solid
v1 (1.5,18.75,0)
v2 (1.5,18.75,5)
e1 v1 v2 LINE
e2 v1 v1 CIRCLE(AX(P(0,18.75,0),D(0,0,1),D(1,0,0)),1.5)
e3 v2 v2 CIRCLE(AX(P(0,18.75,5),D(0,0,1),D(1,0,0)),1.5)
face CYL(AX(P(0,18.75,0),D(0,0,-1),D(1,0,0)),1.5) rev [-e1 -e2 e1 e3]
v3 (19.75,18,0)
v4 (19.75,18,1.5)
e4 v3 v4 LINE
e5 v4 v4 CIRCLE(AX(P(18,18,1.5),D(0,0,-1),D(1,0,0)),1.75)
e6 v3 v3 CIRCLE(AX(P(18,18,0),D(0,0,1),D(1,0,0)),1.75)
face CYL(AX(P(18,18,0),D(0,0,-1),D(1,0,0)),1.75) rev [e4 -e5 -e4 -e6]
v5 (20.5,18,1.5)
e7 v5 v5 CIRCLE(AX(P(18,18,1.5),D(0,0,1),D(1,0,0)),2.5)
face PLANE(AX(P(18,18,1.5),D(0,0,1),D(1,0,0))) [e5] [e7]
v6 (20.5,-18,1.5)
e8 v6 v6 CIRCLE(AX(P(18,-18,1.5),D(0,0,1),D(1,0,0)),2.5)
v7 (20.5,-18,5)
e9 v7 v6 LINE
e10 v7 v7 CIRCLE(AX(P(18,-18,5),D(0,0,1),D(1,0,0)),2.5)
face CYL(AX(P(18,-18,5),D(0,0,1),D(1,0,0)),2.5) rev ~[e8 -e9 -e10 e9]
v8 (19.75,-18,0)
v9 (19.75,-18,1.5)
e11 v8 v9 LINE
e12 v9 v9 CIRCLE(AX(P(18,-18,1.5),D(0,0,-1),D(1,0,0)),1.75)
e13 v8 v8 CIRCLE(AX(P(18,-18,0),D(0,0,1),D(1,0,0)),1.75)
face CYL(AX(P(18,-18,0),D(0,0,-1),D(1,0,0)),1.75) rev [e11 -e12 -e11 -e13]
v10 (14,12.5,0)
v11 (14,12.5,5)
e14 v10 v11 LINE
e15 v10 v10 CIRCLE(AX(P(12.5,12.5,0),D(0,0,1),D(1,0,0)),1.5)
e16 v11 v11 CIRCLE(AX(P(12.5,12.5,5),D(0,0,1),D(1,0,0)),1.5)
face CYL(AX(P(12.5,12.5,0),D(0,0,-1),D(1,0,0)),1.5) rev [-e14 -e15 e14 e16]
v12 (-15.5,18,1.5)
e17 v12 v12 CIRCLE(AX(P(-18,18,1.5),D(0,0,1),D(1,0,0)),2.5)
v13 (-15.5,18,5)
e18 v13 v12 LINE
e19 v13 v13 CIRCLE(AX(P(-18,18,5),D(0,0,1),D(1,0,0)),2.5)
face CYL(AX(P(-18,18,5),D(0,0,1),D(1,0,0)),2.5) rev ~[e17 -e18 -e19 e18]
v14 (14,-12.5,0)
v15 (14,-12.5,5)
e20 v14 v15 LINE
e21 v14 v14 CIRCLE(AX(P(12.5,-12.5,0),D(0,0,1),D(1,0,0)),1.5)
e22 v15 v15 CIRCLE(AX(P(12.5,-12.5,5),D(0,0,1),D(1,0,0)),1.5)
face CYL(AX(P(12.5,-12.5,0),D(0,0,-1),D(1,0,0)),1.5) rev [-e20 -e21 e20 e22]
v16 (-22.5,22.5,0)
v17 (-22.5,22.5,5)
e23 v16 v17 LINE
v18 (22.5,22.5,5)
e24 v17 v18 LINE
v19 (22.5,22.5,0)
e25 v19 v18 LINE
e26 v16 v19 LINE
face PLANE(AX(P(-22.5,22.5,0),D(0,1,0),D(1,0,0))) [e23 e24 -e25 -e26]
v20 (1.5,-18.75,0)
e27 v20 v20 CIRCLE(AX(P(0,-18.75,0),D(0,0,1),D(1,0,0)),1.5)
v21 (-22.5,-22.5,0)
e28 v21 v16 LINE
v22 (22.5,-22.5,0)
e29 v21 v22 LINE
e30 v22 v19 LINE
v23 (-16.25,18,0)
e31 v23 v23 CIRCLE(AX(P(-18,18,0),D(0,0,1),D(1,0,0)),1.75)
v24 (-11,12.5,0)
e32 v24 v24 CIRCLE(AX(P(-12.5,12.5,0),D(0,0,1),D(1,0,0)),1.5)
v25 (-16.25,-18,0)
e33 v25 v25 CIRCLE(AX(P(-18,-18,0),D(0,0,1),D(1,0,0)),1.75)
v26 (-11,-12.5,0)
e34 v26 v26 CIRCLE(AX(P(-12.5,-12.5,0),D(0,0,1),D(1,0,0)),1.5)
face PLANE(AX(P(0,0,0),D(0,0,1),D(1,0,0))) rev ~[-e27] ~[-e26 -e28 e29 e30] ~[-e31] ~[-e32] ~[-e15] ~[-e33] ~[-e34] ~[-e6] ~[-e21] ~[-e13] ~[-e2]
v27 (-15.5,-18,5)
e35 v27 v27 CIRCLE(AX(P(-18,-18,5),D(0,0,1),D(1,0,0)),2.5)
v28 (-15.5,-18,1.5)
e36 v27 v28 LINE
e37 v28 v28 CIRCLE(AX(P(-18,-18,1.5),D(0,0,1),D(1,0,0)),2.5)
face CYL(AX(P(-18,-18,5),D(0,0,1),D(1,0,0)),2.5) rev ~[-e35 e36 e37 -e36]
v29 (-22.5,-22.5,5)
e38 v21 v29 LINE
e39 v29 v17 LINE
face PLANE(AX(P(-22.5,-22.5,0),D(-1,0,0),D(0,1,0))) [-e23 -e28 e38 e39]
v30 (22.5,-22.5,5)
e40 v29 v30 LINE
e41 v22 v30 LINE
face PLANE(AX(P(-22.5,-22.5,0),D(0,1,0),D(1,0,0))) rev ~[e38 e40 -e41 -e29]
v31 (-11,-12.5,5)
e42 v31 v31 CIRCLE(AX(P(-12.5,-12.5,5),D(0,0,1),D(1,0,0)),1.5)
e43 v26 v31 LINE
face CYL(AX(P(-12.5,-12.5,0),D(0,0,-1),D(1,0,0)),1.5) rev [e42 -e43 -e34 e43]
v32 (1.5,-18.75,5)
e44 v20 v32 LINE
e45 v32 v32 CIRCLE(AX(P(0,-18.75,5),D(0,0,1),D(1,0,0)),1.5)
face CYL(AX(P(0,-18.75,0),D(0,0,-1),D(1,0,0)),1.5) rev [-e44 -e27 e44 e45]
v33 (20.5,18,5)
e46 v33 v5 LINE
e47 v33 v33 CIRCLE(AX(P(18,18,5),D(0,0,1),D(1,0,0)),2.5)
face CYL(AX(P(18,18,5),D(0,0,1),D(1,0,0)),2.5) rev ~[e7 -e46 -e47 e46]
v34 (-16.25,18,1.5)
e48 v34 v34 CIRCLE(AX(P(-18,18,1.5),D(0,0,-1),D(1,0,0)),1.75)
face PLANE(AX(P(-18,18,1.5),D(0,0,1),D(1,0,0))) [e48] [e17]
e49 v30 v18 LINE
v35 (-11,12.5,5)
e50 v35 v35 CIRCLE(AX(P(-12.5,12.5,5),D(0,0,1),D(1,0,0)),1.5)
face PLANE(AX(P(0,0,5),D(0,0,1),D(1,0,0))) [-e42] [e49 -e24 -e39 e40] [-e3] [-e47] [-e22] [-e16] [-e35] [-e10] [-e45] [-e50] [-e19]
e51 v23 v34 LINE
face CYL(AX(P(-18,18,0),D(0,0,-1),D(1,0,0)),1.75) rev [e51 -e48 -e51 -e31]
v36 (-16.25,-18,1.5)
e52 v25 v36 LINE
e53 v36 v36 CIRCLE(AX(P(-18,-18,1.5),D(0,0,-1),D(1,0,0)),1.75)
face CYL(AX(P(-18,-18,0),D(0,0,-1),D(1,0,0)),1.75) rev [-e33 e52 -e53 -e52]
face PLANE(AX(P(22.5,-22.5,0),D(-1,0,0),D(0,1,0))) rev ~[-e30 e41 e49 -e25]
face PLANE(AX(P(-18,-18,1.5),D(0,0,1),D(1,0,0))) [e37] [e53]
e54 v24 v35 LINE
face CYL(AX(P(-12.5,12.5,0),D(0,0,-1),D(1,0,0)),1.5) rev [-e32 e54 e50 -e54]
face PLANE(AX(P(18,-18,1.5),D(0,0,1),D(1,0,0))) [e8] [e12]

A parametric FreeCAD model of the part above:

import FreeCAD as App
import Part
import Sketcher
from FreeCAD import Vector
Q = App.Units.Quantity

doc = App.newDocument("Part")
body = doc.addObject("PartDesign::Body", "Body")

# Sketch on XY plane
sketch1 = body.newObject("Sketcher::SketchObject", "Sketch")
sketch1.AttachmentSupport = (doc.getObject("XY_Plane"), [""])
sketch1.MapMode = "FlatFace"
sketch1.addGeometry(Part.LineSegment(Vector(-22.5, 22.5, 0), Vector(-22.5, -22.5, 0)), False)
sketch1.addGeometry(Part.LineSegment(Vector(-22.5, -22.5, 0), Vector(22.5, -22.5, 0)), False)
sketch1.addGeometry(Part.LineSegment(Vector(22.5, -22.5, 0), Vector(22.5, 22.5, 0)), False)
sketch1.addGeometry(Part.LineSegment(Vector(22.5, 22.5, 0), Vector(-22.5, 22.5, 0)), False)
sketch1.addGeometry(Part.Circle(Vector(-18, -18, 0), Vector(0, 0, 1), 1.75), False)
sketch1.addGeometry(Part.Circle(Vector(-12.5, -12.5, 0), Vector(0, 0, 1), 1.5), False)
sketch1.addGeometry(Part.Circle(Vector(0, -18.75, 0), Vector(0, 0, 1), 1.5), False)
sketch1.addGeometry(Part.Circle(Vector(18, -18, 0), Vector(0, 0, 1), 1.75), False)
sketch1.addGeometry(Part.Circle(Vector(12.5, -12.5, 0), Vector(0, 0, 1), 1.5), False)
sketch1.addGeometry(Part.Circle(Vector(-12.5, 12.5, 0), Vector(0, 0, 1), 1.5), False)
sketch1.addGeometry(Part.Circle(Vector(-18, 18, 0), Vector(0, 0, 1), 1.75), False)
sketch1.addGeometry(Part.Circle(Vector(0, 18.75, 0), Vector(0, 0, 1), 1.5), False)
sketch1.addGeometry(Part.Circle(Vector(12.5, 12.5, 0), Vector(0, 0, 1), 1.5), False)
sketch1.addGeometry(Part.Circle(Vector(18, 18, 0), Vector(0, 0, 1), 1.75), False)
sketch1.addConstraint(Sketcher.Constraint("Coincident", 0, 2, 1, 1))
sketch1.addConstraint(Sketcher.Constraint("Coincident", 1, 2, 2, 1))
sketch1.addConstraint(Sketcher.Constraint("Coincident", 2, 2, 3, 1))
sketch1.addConstraint(Sketcher.Constraint("Coincident", 3, 2, 0, 1))
sketch1.addConstraint(Sketcher.Constraint("Vertical", 0))
sketch1.addConstraint(Sketcher.Constraint("Horizontal", 1))
sketch1.addConstraint(Sketcher.Constraint("Vertical", 2))
sketch1.addConstraint(Sketcher.Constraint("Horizontal", 3))
sketch1.addConstraint(Sketcher.Constraint("Equal", 5, 6))
sketch1.addConstraint(Sketcher.Constraint("Equal", 4, 7))
sketch1.addConstraint(Sketcher.Constraint("Equal", 6, 8))
sketch1.addConstraint(Sketcher.Constraint("Equal", 8, 9))
sketch1.addConstraint(Sketcher.Constraint("Equal", 7, 10))
sketch1.addConstraint(Sketcher.Constraint("Equal", 9, 11))
sketch1.addConstraint(Sketcher.Constraint("Equal", 11, 12))
sketch1.addConstraint(Sketcher.Constraint("Equal", 10, 13))
sketch1.addConstraint(Sketcher.Constraint("Symmetric", 8, 3, 9, 3, -1, 1))
sketch1.addConstraint(Sketcher.Constraint("Symmetric", 7, 3, 10, 3, -1, 1))
sketch1.addConstraint(Sketcher.Constraint("Symmetric", 6, 3, 11, 3, -1, 1))
sketch1.addConstraint(Sketcher.Constraint("Symmetric", 5, 3, 12, 3, -1, 1))
sketch1.addConstraint(Sketcher.Constraint("Symmetric", 4, 3, 13, 3, -1, 1))
sketch1.addConstraint(Sketcher.Constraint("Symmetric", 0, 2, 2, 2, -1, 1))
sketch1.addConstraint(Sketcher.Constraint("Symmetric", 4, 3, 7, 3, -2))
sketch1.addConstraint(Sketcher.Constraint("Symmetric", 5, 3, 8, 3, -2))
sketch1.addConstraint(Sketcher.Constraint("PointOnObject", 6, 3, -2))
sketch1.addConstraint(Sketcher.Constraint("Equal", 3, 0))
sketch1.addConstraint(Sketcher.Constraint("Diameter", 5, Q("3 mm")))
sketch1.addConstraint(Sketcher.Constraint("Diameter", 4, Q("3.5 mm")))
sketch1.addConstraint(Sketcher.Constraint("DistanceX", 1, 1, 1, 2, Q("45 mm")))
sketch1.addConstraint(Sketcher.Constraint("DistanceX", 4, 3, -1, 1, Q("18 mm")))
sketch1.addConstraint(Sketcher.Constraint("DistanceY", 4, 3, -1, 1, Q("18 mm")))
sketch1.addConstraint(Sketcher.Constraint("DistanceX", 5, 3, 8, 3, Q("25 mm")))
sketch1.addConstraint(Sketcher.Constraint("DistanceY", 5, 3, 9, 3, Q("25 mm")))
sketch1.addConstraint(Sketcher.Constraint("DistanceY", 6, 3, 11, 3, Q("37.5 mm")))
pad1 = body.newObject("PartDesign::Pad", "Pad")
pad1.Profile = sketch1
pad1.Length = 5

# Sketch on XY plane
sketch2 = body.newObject("Sketcher::SketchObject", "Sketch001")
sketch2.AttachmentSupport = (doc.getObject("XY_Plane"), [""])
sketch2.MapMode = "FlatFace"
sketch2.AttachmentOffset = App.Placement(Vector(0, 0, 5), App.Rotation())
sketch2.addGeometry(Part.Circle(Vector(-18, 18, 0), Vector(0, 0, 1), 2.5), False)
sketch2.addGeometry(Part.Circle(Vector(-18, -18, 0), Vector(0, 0, 1), 2.5), False)
sketch2.addGeometry(Part.Circle(Vector(18, 18, 0), Vector(0, 0, 1), 2.5), False)
sketch2.addGeometry(Part.Circle(Vector(18, -18, 0), Vector(0, 0, 1), 2.5), False)
sketch2.addConstraint(Sketcher.Constraint("Equal", 0, 1))
sketch2.addConstraint(Sketcher.Constraint("Equal", 1, 2))
sketch2.addConstraint(Sketcher.Constraint("Equal", 2, 3))
sketch2.addConstraint(Sketcher.Constraint("Symmetric", 1, 3, 2, 3, -1, 1))
sketch2.addConstraint(Sketcher.Constraint("Symmetric", 0, 3, 3, 3, -1, 1))
sketch2.addConstraint(Sketcher.Constraint("Symmetric", 0, 3, 2, 3, -2))
sketch2.addConstraint(Sketcher.Constraint("Diameter", 0, Q("5 mm")))
sketch2.addConstraint(Sketcher.Constraint("DistanceX", 0, 3, -1, 1, Q("18 mm")))
sketch2.addConstraint(Sketcher.Constraint("DistanceY", -1, 1, 0, 3, Q("18 mm")))
pocket1 = body.newObject("PartDesign::Pocket", "Pocket")
pocket1.Profile = sketch2
pocket1.Length = 3.5

doc.recompute()
